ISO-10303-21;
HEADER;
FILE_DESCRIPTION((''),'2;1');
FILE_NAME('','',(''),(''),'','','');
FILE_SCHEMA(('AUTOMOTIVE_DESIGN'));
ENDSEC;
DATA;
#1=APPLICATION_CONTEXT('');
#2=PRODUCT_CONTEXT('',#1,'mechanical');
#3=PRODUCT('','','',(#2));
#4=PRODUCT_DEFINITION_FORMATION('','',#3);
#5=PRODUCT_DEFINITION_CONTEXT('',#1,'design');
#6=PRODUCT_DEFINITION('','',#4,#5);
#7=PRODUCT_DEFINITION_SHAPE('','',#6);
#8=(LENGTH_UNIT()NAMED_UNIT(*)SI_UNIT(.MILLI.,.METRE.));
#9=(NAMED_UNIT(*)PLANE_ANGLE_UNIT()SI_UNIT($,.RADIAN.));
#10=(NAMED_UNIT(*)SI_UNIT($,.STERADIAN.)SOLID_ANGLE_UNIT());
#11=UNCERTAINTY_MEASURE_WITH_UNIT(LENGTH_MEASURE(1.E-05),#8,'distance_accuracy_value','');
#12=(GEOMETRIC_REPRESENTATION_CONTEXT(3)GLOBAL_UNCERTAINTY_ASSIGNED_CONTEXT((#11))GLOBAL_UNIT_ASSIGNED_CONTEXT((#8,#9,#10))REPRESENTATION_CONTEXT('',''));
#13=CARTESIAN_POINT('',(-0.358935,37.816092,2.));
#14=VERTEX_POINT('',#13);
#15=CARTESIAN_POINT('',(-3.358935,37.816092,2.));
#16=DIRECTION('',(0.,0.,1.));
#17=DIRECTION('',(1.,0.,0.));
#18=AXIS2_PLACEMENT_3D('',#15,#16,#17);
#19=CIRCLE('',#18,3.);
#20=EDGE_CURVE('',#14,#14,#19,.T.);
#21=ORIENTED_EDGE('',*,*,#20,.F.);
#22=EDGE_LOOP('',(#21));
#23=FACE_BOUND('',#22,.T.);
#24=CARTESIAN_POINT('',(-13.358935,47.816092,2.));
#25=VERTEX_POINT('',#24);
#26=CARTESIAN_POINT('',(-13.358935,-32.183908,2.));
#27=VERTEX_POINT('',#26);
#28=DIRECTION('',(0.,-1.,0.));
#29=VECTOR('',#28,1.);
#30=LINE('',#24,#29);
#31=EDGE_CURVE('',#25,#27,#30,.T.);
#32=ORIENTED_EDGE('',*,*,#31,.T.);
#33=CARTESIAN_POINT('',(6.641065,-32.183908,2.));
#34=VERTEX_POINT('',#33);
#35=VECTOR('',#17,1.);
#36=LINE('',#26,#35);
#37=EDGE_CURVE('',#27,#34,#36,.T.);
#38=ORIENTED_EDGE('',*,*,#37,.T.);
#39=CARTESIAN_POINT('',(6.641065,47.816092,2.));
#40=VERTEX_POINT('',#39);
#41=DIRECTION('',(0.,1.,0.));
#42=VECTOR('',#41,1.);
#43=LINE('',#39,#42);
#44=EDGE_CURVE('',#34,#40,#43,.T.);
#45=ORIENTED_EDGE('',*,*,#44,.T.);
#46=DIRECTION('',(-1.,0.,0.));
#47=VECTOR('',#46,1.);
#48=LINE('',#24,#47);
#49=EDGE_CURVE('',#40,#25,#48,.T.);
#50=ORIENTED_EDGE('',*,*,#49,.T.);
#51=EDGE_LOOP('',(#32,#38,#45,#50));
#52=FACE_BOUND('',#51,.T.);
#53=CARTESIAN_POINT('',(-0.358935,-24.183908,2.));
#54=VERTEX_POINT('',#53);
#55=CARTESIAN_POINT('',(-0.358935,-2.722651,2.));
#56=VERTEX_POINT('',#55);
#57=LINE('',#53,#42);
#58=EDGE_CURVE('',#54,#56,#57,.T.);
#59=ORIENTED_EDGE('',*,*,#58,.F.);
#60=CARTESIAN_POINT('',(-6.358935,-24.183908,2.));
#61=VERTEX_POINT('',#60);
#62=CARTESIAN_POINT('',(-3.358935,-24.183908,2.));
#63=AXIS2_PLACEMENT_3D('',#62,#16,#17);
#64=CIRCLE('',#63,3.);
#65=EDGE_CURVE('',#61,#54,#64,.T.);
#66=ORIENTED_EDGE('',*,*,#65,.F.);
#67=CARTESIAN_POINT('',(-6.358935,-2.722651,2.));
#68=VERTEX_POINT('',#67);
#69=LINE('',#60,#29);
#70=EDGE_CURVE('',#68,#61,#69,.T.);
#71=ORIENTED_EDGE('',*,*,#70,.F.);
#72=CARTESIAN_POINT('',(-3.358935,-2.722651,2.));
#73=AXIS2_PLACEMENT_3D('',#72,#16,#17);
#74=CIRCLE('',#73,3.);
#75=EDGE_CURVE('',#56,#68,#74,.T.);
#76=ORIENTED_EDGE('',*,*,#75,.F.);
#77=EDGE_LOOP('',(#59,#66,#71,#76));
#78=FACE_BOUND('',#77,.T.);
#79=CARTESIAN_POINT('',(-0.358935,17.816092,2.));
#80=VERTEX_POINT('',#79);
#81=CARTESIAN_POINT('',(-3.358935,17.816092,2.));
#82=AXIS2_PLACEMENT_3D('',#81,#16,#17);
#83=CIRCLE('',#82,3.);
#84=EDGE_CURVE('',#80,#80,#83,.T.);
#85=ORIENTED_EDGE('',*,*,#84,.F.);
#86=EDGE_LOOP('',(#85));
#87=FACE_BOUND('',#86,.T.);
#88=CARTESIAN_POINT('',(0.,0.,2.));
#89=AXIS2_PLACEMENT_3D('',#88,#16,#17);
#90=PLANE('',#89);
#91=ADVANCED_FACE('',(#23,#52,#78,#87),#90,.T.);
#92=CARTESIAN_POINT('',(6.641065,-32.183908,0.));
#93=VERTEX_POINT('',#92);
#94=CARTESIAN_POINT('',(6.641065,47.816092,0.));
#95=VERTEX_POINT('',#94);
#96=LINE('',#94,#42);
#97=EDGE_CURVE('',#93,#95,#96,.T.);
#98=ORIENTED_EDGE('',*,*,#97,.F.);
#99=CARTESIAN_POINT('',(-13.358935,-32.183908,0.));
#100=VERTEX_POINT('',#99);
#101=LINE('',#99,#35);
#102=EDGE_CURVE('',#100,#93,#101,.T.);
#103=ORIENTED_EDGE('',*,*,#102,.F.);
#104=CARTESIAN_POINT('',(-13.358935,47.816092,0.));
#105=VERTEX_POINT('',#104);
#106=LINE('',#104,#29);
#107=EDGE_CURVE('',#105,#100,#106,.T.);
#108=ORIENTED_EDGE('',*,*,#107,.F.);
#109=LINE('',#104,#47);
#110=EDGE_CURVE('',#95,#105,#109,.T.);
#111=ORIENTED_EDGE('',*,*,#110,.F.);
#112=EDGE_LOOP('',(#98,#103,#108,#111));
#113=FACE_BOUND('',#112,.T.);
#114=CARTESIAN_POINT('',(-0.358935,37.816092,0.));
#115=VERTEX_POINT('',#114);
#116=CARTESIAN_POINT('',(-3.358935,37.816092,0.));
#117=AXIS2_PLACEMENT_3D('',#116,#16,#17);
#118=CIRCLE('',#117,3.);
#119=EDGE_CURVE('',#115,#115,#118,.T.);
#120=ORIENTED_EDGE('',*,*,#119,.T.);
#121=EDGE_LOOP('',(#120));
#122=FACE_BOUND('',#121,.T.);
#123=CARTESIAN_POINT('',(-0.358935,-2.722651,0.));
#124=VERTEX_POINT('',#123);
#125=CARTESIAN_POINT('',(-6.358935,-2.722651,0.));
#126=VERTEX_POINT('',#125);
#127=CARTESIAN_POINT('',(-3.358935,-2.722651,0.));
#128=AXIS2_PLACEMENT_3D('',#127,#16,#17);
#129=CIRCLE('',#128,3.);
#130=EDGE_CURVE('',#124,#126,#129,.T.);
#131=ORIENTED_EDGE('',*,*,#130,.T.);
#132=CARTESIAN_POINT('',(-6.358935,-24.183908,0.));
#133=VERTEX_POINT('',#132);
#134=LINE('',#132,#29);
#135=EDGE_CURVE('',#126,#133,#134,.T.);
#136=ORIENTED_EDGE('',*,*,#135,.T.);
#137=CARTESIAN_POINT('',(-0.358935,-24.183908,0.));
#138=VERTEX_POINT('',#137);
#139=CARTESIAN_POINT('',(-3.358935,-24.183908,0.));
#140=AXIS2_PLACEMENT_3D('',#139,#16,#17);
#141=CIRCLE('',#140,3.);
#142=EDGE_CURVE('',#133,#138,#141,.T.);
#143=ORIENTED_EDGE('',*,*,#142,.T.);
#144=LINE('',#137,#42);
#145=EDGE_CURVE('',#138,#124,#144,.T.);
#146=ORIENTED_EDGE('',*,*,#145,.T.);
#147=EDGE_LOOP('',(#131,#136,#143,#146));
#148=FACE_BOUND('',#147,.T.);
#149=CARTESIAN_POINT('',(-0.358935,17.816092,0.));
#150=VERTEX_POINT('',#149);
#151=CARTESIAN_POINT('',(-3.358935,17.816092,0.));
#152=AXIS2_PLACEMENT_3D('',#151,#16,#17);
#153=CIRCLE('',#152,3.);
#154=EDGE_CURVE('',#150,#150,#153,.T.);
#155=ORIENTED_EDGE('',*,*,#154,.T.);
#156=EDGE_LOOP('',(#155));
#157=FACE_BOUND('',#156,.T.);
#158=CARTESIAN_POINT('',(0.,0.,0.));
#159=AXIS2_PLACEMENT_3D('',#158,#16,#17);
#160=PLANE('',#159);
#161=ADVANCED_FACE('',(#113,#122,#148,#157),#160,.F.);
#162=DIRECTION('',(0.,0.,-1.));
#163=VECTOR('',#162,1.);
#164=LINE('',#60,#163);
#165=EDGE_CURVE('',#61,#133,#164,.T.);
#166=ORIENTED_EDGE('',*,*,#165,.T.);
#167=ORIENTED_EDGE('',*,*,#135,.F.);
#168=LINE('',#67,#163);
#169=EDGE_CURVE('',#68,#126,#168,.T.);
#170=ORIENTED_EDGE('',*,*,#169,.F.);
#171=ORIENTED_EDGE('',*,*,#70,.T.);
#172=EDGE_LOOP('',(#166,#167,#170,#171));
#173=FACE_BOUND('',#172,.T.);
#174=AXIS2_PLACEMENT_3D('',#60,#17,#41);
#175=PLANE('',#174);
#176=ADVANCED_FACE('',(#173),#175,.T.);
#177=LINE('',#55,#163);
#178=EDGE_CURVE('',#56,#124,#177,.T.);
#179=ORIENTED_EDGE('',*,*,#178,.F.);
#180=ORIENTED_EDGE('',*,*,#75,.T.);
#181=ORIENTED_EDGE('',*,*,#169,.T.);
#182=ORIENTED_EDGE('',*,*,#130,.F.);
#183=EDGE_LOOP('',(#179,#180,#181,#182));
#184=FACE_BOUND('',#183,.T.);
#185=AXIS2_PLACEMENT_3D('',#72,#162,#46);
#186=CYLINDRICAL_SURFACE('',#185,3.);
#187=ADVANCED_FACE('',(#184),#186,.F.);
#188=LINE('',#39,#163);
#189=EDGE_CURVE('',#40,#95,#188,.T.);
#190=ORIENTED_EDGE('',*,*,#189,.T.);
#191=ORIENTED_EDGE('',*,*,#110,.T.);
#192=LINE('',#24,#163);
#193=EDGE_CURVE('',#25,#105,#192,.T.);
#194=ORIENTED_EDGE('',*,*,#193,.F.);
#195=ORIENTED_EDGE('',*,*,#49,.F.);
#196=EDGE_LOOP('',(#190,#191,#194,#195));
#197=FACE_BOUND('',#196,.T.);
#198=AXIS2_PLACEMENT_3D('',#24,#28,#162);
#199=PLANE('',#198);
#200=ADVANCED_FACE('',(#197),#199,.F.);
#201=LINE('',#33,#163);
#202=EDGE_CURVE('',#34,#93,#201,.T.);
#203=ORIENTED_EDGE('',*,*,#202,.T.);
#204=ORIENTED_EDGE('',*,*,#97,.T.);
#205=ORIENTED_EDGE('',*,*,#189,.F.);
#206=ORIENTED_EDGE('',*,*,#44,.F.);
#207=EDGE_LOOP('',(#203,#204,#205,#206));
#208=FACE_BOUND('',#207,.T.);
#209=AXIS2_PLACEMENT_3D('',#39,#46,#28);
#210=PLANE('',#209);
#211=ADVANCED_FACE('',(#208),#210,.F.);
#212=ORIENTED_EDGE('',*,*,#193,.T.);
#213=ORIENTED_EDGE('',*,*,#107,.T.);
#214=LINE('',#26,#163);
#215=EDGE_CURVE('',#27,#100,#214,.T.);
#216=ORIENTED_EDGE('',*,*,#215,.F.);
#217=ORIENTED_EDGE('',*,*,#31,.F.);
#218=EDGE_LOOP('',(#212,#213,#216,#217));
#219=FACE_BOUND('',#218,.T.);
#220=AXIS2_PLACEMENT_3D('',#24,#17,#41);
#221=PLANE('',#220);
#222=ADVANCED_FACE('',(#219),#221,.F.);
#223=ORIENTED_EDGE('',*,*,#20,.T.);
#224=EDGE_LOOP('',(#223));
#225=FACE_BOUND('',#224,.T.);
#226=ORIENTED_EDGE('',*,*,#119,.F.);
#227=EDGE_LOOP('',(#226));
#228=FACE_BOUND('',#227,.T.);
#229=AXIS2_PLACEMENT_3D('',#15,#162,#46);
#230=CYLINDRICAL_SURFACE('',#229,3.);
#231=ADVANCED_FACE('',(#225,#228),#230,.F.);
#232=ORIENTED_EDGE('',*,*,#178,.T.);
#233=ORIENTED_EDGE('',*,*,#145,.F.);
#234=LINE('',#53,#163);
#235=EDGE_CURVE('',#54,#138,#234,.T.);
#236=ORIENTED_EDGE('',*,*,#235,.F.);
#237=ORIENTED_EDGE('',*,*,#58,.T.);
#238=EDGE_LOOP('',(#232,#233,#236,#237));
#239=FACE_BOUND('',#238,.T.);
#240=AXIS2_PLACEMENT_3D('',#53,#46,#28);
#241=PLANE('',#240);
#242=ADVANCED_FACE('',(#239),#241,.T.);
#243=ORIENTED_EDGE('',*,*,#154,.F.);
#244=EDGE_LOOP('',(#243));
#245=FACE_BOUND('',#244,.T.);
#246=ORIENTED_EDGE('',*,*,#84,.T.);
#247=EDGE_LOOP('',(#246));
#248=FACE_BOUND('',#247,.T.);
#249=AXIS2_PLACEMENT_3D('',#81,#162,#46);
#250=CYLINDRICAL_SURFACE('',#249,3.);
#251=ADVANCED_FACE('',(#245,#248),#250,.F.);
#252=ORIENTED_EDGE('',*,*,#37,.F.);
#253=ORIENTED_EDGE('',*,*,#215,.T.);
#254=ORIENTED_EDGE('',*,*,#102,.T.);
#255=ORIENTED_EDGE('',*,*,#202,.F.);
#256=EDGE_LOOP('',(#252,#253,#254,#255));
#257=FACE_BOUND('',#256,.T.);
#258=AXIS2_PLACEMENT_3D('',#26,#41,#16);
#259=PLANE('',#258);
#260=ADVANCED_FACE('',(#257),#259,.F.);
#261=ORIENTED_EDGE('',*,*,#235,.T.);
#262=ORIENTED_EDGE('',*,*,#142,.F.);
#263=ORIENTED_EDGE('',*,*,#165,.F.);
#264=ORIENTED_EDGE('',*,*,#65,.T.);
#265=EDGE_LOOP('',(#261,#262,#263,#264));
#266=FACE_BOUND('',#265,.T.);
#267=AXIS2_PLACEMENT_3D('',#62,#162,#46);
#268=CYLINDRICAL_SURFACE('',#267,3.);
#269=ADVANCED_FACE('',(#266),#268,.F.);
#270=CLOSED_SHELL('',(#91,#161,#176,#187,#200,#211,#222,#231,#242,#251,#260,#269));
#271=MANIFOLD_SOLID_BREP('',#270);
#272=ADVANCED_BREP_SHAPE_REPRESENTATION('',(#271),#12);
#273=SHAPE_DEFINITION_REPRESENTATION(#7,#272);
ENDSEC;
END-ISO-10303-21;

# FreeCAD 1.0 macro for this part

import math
import FreeCAD as App
import Part
import Sketcher
Q = App.Units.Quantity


def add_polygon(sketch, points):
    """Adds a closed chain of lines whose ends are joined by coincident constraints."""
    first, n = sketch.GeometryCount, len(points)
    for a, b in zip(points, points[1:] + points[:1]):
        sketch.addGeometry(Part.LineSegment(App.Vector(*a, 0), App.Vector(*b, 0)), False)
    for i in range(n):
        sketch.addConstraint(Sketcher.Constraint("Coincident", first + i, 2, first + (i + 1) % n, 1))

doc = App.newDocument("Part")
body = doc.addObject("PartDesign::Body", "Body")

# Sketch on XY plane
sketch1 = doc.addObject("Sketcher::SketchObject", "Sketch")
body.addObject(sketch1)
sketch1.AttachmentSupport = (doc.XY_Plane, [""])
sketch1.MapMode = "FlatFace"
add_polygon(sketch1, [(-13.358935, 47.816092), (-13.358935, -32.183908), (6.641065, -32.183908), (6.641065, 47.816092)])  # lines 0-3
sketch1.addGeometry(Part.ArcOfCircle(Part.Circle(App.Vector(-3.358935, -24.183908, 0), App.Vector(0, 0, 1), 3), math.radians(180), math.radians(360)), False)  # 4
sketch1.addGeometry(Part.LineSegment(App.Vector(-6.358935, -24.183908, 0), App.Vector(-6.358935, -2.722651, 0)), False)  # 5
sketch1.addGeometry(Part.ArcOfCircle(Part.Circle(App.Vector(-3.358935, -2.722651, 0), App.Vector(0, 0, 1), 3), math.radians(0), math.radians(180)), False)  # 6
sketch1.addGeometry(Part.LineSegment(App.Vector(-0.358935, -2.722651, 0), App.Vector(-0.358935, -24.183908, 0)), False)  # 7
sketch1.addGeometry(Part.Circle(App.Vector(-3.358935, 17.816092, 0), App.Vector(0, 0, 1), 3), False)  # 8
sketch1.addGeometry(Part.Circle(App.Vector(-3.358935, 37.816092, 0), App.Vector(0, 0, 1), 3), False)  # 9
sketch1.addConstraint([
    Sketcher.Constraint("Tangent", 4, 1, 5, 1),
    Sketcher.Constraint("Tangent", 5, 2, 6, 2),
    Sketcher.Constraint("Tangent", 6, 1, 7, 1),
    Sketcher.Constraint("Tangent", 7, 2, 4, 2),
    Sketcher.Constraint("Vertical", 0),
    Sketcher.Constraint("Horizontal", 1),
    Sketcher.Constraint("Vertical", 2),
    Sketcher.Constraint("Horizontal", 3),
    Sketcher.Constraint("Vertical", 5),
    Sketcher.Constraint("Vertical", 7),
    Sketcher.Constraint("Equal", 6, 8),
    Sketcher.Constraint("Equal", 8, 9),
    Sketcher.Constraint("Vertical", 6, 3, 8, 3),
    Sketcher.Constraint("Vertical", 8, 3, 9, 3),
    Sketcher.Constraint("Diameter", 8, Q("6 mm")),
    Sketcher.Constraint("DistanceX", 1, 1, 1, 2, Q("20 mm")),
    Sketcher.Constraint("DistanceY", 0, 2, 0, 1, Q("80 mm")),
    Sketcher.Constraint("DistanceY", 4, 3, 8, 3, Q("42 mm")),
    Sketcher.Constraint("DistanceY", 8, 3, 9, 3, Q("20 mm")),
    Sketcher.Constraint("DistanceX", 0, 2, 4, 3, Q("10 mm")),
    Sketcher.Constraint("DistanceY", 0, 2, 4, 3, Q("8 mm")),
    Sketcher.Constraint("DistanceY", 5, 1, 5, 2, Q("21.461257 mm")),
    Sketcher.Constraint("DistanceY", 4, 3, -1, 1, Q("24.183908 mm")),
    Sketcher.Constraint("DistanceX", 4, 3, -1, 1, Q("3.358935 mm")),
])
pad1 = doc.addObject("PartDesign::Pad", "Pad")
body.addObject(pad1)
pad1.Profile = sketch1
pad1.Length = 2

doc.recompute()
